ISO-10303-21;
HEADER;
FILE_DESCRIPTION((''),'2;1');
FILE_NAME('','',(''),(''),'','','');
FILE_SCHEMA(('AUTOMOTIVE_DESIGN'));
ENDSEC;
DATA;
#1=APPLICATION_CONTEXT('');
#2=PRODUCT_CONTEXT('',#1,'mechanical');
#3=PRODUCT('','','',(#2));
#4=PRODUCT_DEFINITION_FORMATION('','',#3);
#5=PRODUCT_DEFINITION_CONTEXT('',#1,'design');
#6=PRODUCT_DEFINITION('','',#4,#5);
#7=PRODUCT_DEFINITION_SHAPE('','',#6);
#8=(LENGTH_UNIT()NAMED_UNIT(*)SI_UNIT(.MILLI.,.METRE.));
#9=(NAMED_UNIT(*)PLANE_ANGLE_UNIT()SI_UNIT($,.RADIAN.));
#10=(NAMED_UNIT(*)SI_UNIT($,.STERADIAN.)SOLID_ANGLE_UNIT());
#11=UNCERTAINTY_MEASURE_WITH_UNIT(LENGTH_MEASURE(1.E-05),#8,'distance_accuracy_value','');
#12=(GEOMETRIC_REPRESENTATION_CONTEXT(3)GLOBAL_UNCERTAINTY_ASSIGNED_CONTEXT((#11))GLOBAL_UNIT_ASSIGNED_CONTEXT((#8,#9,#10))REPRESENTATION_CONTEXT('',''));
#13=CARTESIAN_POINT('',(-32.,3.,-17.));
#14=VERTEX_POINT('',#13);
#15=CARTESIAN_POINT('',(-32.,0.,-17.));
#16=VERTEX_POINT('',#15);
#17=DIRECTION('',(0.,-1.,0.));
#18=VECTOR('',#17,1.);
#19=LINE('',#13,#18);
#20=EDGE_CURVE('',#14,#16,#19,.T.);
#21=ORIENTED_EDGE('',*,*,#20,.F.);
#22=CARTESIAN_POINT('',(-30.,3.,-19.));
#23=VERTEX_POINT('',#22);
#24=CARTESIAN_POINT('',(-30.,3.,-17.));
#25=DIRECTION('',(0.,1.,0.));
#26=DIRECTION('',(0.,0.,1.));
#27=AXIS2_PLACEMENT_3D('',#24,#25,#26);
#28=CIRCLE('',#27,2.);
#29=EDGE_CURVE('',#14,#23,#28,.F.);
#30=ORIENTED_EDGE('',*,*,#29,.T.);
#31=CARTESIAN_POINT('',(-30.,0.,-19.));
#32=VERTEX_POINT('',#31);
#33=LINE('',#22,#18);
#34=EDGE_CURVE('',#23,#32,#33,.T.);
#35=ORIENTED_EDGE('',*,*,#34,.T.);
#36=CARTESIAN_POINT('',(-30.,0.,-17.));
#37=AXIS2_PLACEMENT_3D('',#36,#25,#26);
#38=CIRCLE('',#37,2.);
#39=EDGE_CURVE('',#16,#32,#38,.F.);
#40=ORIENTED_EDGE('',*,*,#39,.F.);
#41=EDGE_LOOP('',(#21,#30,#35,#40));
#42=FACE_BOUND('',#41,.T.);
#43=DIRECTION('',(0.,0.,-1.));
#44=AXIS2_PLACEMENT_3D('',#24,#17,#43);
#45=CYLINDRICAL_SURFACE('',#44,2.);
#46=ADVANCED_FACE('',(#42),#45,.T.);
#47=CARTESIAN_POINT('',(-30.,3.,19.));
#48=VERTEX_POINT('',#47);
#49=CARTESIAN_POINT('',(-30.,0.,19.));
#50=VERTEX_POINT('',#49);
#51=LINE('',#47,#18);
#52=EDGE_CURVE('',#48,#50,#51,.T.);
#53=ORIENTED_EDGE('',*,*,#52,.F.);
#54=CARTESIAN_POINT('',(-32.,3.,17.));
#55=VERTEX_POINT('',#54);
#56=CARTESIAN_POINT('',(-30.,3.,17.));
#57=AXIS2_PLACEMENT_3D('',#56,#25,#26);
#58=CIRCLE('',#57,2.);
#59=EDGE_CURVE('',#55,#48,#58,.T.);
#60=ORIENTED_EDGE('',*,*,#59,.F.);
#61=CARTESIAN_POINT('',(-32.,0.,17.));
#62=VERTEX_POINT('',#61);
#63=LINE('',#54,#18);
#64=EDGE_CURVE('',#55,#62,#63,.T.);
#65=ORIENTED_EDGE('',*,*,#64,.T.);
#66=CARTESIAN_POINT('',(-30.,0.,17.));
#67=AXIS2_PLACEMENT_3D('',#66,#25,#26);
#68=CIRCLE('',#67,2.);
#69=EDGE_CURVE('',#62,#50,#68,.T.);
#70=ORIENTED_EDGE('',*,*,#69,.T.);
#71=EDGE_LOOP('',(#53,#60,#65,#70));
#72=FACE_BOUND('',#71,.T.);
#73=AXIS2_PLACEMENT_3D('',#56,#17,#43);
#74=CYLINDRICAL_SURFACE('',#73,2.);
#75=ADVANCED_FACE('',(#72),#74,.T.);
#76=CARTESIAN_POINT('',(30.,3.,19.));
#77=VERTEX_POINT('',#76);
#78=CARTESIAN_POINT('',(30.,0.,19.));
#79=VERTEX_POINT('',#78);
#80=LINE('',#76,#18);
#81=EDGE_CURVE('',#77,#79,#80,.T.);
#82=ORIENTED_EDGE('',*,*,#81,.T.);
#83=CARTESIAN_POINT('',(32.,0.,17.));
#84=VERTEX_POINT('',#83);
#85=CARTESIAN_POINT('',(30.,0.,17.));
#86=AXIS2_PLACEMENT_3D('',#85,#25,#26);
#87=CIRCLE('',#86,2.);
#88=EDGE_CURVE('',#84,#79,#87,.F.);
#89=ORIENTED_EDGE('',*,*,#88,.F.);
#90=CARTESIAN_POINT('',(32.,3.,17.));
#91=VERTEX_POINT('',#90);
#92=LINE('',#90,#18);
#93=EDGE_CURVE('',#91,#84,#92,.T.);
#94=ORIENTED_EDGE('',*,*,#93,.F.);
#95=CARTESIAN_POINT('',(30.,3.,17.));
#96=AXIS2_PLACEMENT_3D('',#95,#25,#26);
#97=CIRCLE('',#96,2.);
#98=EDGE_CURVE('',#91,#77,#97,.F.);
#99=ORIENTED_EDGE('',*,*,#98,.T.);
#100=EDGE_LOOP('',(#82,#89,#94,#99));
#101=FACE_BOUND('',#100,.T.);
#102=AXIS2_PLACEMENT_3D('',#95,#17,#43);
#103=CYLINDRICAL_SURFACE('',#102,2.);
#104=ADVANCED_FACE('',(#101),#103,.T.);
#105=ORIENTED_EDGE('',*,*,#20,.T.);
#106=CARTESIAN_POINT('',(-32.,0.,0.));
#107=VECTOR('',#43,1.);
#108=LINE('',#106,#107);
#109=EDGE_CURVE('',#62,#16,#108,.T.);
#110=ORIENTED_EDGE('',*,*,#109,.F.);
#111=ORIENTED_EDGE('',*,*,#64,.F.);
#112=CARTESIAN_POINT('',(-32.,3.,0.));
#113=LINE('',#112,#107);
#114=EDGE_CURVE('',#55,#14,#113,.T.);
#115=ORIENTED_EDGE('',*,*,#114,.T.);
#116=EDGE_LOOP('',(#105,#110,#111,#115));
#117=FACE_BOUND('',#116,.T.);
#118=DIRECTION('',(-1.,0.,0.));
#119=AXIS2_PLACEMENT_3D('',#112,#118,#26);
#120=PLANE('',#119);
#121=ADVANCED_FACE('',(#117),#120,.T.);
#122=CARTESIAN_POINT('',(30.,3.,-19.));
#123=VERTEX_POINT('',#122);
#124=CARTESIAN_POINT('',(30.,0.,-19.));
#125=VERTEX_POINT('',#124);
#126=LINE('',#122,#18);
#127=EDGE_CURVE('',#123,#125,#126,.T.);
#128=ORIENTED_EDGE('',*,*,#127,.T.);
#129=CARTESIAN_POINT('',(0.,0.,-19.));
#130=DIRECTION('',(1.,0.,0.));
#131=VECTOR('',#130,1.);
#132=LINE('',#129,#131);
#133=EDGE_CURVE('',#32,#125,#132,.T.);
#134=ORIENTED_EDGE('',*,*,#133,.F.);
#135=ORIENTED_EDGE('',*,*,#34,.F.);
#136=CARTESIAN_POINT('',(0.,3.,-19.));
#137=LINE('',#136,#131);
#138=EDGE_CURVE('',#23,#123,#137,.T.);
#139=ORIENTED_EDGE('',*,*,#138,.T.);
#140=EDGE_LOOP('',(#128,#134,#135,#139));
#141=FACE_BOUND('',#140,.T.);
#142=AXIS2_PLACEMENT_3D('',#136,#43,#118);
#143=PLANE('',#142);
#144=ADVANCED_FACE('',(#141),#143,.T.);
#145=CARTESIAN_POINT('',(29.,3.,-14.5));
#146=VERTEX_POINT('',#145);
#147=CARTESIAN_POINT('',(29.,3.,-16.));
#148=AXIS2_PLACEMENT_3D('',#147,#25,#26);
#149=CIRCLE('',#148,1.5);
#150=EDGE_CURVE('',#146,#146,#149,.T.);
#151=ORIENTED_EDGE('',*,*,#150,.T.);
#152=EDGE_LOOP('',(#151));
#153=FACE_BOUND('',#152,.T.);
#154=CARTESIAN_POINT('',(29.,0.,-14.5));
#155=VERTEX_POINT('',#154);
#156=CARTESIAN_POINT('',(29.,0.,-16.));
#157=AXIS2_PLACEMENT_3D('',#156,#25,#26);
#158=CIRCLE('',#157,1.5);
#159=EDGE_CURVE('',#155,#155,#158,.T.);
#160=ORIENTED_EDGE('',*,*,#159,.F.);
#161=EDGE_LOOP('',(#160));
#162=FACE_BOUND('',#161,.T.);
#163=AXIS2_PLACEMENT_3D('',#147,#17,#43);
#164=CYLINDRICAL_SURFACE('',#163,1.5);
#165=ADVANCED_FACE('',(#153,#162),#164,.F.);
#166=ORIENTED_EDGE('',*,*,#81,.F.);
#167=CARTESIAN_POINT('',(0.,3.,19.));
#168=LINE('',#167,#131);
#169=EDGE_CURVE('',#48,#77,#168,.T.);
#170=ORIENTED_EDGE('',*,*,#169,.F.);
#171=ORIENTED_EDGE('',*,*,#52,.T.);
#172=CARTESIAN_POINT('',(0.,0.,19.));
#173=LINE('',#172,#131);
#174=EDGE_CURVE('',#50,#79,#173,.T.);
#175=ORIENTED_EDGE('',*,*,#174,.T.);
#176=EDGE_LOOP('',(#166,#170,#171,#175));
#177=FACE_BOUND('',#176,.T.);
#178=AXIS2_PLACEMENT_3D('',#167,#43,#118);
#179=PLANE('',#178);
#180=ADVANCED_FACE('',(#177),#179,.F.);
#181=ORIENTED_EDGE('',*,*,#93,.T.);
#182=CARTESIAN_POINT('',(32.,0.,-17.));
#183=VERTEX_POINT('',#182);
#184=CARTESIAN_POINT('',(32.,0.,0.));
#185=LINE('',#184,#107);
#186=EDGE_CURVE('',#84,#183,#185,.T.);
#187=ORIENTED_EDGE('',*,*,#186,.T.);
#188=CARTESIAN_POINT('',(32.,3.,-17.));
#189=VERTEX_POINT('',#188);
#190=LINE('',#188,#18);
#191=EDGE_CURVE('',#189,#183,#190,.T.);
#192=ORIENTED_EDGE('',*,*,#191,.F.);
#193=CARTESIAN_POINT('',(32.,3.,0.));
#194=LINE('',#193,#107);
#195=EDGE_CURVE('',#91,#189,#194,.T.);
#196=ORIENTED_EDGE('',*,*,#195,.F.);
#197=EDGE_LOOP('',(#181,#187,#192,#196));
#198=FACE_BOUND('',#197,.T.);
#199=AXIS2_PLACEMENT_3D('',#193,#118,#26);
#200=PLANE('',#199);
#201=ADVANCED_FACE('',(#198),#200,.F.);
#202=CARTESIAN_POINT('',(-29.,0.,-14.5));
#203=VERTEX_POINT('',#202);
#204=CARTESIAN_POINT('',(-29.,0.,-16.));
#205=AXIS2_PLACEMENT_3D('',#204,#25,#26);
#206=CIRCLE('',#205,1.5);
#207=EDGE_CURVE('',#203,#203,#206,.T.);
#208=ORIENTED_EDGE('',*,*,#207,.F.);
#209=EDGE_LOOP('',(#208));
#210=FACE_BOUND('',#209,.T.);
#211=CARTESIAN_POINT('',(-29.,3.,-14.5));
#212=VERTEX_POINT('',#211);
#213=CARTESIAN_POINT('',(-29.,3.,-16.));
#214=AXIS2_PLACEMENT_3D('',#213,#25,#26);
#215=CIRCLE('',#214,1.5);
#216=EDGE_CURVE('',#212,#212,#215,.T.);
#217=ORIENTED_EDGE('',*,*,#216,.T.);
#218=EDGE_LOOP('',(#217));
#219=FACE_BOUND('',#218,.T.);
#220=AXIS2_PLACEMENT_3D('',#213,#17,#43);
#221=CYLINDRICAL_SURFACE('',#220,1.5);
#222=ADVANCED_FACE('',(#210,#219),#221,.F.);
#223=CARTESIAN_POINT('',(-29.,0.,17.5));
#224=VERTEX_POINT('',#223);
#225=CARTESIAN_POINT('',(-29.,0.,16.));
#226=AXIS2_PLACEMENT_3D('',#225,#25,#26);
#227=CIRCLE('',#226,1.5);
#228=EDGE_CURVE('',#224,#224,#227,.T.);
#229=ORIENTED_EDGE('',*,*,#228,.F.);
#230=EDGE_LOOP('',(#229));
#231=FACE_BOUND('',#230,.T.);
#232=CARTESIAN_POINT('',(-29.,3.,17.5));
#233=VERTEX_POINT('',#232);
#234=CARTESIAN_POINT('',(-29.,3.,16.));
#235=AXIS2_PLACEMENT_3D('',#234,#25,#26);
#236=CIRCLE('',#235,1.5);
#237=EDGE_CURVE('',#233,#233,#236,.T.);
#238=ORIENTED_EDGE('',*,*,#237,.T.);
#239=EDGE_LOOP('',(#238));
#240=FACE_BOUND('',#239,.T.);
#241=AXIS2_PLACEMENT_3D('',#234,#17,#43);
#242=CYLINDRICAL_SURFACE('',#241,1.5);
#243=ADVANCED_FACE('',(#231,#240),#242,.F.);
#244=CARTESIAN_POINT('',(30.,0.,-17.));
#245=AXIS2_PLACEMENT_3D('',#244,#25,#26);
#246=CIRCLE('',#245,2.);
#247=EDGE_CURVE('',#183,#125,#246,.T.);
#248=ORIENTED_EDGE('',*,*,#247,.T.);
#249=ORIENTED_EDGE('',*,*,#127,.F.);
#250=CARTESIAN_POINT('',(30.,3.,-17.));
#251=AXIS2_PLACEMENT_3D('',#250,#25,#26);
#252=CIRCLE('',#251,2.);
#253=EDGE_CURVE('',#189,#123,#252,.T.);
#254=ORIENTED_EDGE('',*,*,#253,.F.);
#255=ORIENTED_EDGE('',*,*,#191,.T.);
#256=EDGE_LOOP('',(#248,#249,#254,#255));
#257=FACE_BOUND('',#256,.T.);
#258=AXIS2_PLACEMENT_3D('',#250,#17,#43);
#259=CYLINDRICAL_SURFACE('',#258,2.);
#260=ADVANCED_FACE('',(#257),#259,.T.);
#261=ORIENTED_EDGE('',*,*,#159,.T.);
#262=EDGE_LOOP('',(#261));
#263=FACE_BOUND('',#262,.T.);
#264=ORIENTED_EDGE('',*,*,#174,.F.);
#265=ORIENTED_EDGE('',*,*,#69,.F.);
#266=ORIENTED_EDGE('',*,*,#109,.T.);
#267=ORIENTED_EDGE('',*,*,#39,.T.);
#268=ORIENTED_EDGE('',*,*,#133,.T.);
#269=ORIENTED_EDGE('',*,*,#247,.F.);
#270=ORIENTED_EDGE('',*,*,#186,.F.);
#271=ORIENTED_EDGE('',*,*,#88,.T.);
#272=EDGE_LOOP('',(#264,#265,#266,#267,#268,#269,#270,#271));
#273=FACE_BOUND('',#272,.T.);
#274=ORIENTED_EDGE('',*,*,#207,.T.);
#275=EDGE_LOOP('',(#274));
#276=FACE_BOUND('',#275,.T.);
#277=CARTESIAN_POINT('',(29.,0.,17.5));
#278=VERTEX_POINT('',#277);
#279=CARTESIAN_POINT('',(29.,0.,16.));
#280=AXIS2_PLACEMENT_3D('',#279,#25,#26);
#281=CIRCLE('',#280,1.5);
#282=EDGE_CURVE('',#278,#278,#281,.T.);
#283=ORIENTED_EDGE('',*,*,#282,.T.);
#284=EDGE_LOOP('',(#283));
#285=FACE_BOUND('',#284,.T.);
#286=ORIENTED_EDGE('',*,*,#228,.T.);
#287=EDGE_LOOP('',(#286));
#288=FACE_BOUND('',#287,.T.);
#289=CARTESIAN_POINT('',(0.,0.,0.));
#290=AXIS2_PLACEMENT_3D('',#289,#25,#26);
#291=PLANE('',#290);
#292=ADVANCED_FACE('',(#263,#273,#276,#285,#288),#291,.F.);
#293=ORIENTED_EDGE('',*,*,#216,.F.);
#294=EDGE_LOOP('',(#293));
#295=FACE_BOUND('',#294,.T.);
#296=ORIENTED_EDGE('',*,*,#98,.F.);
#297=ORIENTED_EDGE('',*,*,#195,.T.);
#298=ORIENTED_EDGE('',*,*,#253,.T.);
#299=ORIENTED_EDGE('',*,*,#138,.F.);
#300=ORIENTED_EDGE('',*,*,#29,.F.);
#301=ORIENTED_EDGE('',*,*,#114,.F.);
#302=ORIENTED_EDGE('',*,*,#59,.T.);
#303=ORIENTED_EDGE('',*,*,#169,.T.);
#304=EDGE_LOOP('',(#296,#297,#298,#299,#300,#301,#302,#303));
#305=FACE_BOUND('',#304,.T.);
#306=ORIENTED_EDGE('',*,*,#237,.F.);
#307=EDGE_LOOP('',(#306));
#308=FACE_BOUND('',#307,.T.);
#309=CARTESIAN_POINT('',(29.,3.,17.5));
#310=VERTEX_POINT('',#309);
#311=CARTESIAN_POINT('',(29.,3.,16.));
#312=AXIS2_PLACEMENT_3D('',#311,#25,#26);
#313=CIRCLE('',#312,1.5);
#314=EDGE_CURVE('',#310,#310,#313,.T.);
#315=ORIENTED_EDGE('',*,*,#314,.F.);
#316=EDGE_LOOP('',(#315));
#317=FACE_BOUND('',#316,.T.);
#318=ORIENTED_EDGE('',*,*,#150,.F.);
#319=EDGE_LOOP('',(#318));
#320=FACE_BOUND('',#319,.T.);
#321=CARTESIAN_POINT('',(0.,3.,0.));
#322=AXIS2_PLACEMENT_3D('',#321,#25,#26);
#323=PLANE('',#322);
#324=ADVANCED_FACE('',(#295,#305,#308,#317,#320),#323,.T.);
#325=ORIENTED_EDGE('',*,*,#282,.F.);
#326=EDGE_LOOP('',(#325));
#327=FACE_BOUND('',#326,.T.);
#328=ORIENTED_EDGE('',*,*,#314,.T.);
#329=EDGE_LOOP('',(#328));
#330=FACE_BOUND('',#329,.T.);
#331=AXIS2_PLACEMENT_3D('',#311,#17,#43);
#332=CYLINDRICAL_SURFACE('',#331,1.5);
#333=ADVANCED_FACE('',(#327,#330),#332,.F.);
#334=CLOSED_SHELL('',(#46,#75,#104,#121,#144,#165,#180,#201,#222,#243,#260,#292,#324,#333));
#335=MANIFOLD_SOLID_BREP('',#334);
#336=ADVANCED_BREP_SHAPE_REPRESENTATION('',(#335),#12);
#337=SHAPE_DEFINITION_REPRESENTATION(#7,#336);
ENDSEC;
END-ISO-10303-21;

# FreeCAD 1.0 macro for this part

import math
import FreeCAD as App
import Part
import Sketcher

V = App.Vector
Q = App.Units.Quantity

doc = App.newDocument("Part")
body = doc.addObject("PartDesign::Body", "Body")

# Sketch on XZ plane
sketch1 = body.newObject("Sketcher::SketchObject", "Sketch")
sketch1.AttachmentSupport = (doc.getObject("XZ_Plane"), [""])
sketch1.MapMode = "FlatFace"
sketch1.addGeometry([
    Part.LineSegment(V(-30, 19, 0), V(30, 19, 0)),  # 0
    Part.ArcOfCircle(Part.Circle(V(30, 17, 0), V(0, 0, 1), 2), math.radians(0), math.radians(90)),  # 1
    Part.LineSegment(V(32, 17, 0), V(32, -17, 0)),  # 2
    Part.ArcOfCircle(Part.Circle(V(30, -17, 0), V(0, 0, 1), 2), math.radians(-90), math.radians(0)),  # 3
    Part.LineSegment(V(30, -19, 0), V(-30, -19, 0)),  # 4
    Part.ArcOfCircle(Part.Circle(V(-30, -17, 0), V(0, 0, 1), 2), math.radians(-180), math.radians(-90)),  # 5
    Part.LineSegment(V(-32, -17, 0), V(-32, 17, 0)),  # 6
    Part.ArcOfCircle(Part.Circle(V(-30, 17, 0), V(0, 0, 1), 2), math.radians(90), math.radians(180)),  # 7
    Part.Circle(V(-29, 16, 0), V(0, 0, 1), 1.5),  # 8
    Part.Circle(V(29, 16, 0), V(0, 0, 1), 1.5),  # 9
    Part.Circle(V(-29, -16, 0), V(0, 0, 1), 1.5),  # 10
    Part.Circle(V(29, -16, 0), V(0, 0, 1), 1.5),  # 11
], False)
sketch1.addConstraint([
    Sketcher.Constraint("Tangent", 0, 2, 1, 2),
    Sketcher.Constraint("Tangent", 1, 1, 2, 1),
    Sketcher.Constraint("Tangent", 2, 2, 3, 2),
    Sketcher.Constraint("Tangent", 3, 1, 4, 1),
    Sketcher.Constraint("Tangent", 4, 2, 5, 2),
    Sketcher.Constraint("Tangent", 5, 1, 6, 1),
    Sketcher.Constraint("Tangent", 6, 2, 7, 2),
    Sketcher.Constraint("Tangent", 7, 1, 0, 1),
    Sketcher.Constraint("Horizontal", 0),
    Sketcher.Constraint("Vertical", 2),
    Sketcher.Constraint("Horizontal", 4),
    Sketcher.Constraint("Vertical", 6),
    Sketcher.Constraint("Equal", 1, 3),
    Sketcher.Constraint("Equal", 3, 5),
    Sketcher.Constraint("Equal", 5, 7),
    Sketcher.Constraint("Equal", 8, 9),
    Sketcher.Constraint("Equal", 9, 10),
    Sketcher.Constraint("Equal", 10, 11),
    Sketcher.Constraint("Symmetric", 1, 3, 5, 3, -1, 1),
    Sketcher.Constraint("Symmetric", 9, 3, 10, 3, -1, 1),
    Sketcher.Constraint("Symmetric", 8, 3, 11, 3, -1, 1),
    Sketcher.Constraint("Symmetric", 8, 3, 9, 3, -2),
    Sketcher.Constraint("Diameter", 8, Q("3 mm")),
    Sketcher.Constraint("Radius", 1, Q("2 mm")),
    Sketcher.Constraint("DistanceX", 0, 1, 0, 2, Q("60 mm")),
    Sketcher.Constraint("DistanceY", 2, 2, 2, 1, Q("34 mm")),
    Sketcher.Constraint("DistanceX", 8, 3, -1, 1, Q("29 mm")),
    Sketcher.Constraint("DistanceY", -1, 1, 8, 3, Q("16 mm")),
])
pad1 = body.newObject("PartDesign::Pad", "Pad")
pad1.Profile = sketch1
pad1.Length = 3
pad1.Reversed = True

doc.recompute()
